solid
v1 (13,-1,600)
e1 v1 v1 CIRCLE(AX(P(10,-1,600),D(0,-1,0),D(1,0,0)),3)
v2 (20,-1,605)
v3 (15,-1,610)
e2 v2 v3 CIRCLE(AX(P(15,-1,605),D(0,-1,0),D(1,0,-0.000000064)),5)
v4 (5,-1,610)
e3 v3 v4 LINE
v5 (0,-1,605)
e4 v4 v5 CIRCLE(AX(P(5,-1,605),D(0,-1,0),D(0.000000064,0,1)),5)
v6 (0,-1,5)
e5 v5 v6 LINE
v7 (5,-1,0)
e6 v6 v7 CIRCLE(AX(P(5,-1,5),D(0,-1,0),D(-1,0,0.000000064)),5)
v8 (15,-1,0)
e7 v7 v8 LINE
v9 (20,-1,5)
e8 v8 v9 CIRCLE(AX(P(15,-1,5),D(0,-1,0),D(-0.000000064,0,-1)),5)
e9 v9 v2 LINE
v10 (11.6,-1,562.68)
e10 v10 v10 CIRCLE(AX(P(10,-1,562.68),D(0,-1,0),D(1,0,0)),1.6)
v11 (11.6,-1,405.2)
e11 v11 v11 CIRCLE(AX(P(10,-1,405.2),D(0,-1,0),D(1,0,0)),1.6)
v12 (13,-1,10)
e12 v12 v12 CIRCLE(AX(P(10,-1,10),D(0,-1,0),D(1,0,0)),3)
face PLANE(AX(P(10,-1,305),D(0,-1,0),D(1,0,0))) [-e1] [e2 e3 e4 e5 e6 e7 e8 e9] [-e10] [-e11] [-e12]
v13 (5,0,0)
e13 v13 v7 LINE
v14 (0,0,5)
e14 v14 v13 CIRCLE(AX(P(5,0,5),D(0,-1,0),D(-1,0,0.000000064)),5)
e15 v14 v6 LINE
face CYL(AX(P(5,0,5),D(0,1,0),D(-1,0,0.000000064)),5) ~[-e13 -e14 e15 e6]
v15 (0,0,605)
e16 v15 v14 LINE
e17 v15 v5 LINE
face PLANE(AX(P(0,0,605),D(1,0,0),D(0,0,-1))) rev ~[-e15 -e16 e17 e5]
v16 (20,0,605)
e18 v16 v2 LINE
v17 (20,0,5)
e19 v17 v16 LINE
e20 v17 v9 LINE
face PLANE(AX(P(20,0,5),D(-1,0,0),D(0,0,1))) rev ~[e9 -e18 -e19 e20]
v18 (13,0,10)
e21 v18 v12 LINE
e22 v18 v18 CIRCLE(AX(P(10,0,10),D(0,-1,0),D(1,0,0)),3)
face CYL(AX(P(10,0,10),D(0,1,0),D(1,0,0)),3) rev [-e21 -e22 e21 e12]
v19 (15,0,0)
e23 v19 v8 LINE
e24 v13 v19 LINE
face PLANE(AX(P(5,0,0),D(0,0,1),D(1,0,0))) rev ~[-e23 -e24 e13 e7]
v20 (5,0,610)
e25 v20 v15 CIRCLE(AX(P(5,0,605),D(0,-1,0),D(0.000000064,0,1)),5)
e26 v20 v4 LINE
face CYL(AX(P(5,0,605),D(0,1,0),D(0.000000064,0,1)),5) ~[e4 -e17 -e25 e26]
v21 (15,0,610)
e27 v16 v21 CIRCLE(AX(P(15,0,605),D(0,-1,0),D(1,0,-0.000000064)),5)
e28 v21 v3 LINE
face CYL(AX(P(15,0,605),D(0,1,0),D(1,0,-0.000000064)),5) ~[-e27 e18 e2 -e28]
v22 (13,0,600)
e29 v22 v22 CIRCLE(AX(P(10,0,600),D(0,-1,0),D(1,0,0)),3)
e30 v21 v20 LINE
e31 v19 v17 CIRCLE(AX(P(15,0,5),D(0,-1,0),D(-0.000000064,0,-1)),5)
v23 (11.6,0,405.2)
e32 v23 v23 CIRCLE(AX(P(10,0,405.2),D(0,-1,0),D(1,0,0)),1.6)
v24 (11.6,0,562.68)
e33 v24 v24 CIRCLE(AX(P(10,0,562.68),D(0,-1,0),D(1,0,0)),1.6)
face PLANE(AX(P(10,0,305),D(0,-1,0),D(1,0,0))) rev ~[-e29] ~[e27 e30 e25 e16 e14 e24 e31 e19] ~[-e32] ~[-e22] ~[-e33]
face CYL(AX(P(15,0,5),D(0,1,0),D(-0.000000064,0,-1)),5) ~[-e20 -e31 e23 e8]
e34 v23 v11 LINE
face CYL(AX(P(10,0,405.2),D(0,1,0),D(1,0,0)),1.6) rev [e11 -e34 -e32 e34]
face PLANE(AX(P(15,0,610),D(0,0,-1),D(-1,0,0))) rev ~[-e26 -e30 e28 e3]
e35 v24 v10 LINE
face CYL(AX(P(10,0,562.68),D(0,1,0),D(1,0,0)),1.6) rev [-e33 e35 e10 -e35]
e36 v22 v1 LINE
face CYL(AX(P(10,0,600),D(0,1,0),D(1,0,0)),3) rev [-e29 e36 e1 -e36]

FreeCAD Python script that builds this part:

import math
import FreeCAD as App
import Part
import Sketcher
Q = App.Units.Quantity

doc = App.newDocument("Part")
params = doc.addObject("Spreadsheet::Sheet", "Params")
for row, (alias, value) in enumerate([
    ("sketch1_diameter", "6 mm"),
    ("sketch1_radius", "5 mm"),
    ("sketch1_diameter2", "3.2 mm"),
    ("sketch1_width", "10 mm"),
    ("sketch1_height", "600 mm"),
    ("pad1_length", "1 mm"),
], start=1):
    params.set(f"A{row}", alias)
    params.set(f"B{row}", "=" + value)
    params.setAlias(f"B{row}", alias)

body = doc.addObject("PartDesign::Body", "Body")

# Sketch on XZ plane
sketch1 = body.newObject("Sketcher::SketchObject", "Sketch")
sketch1.AttachmentSupport = (doc.getObject("XZ_Plane"), [""])
sketch1.MapMode = "FlatFace"
sketch1.addGeometry([
    Part.ArcOfCircle(Part.Circle(App.Vector(5, 5, 0), App.Vector(0, 0, 1), 5), math.radians(180), math.radians(270)),  # 0
    Part.LineSegment(App.Vector(5, 0, 0), App.Vector(15, 0, 0)),  # 1
    Part.ArcOfCircle(Part.Circle(App.Vector(15, 5, 0), App.Vector(0, 0, 1), 5), math.radians(-90), math.radians(0)),  # 2
    Part.LineSegment(App.Vector(20, 5, 0), App.Vector(20, 605, 0)),  # 3
    Part.ArcOfCircle(Part.Circle(App.Vector(15, 605, 0), App.Vector(0, 0, 1), 5), math.radians(0), math.radians(90)),  # 4
    Part.LineSegment(App.Vector(15, 610, 0), App.Vector(5, 610, 0)),  # 5
    Part.ArcOfCircle(Part.Circle(App.Vector(5, 605, 0), App.Vector(0, 0, 1), 5), math.radians(90), math.radians(180)),  # 6
    Part.LineSegment(App.Vector(0, 605, 0), App.Vector(0, 5, 0)),  # 7
    Part.Circle(App.Vector(10, 10, 0), App.Vector(0, 0, 1), 3),  # 8
    Part.Circle(App.Vector(10, 405.2, 0), App.Vector(0, 0, 1), 1.6),  # 9
    Part.Circle(App.Vector(10, 562.7, 0), App.Vector(0, 0, 1), 1.6),  # 10
    Part.Circle(App.Vector(10, 600, 0), App.Vector(0, 0, 1), 3),  # 11
], False)
sketch1.addConstraint([
    Sketcher.Constraint("Tangent", 0, 2, 1, 1),
    Sketcher.Constraint("Tangent", 1, 2, 2, 1),
    Sketcher.Constraint("Tangent", 2, 2, 3, 1),
    Sketcher.Constraint("Tangent", 3, 2, 4, 1),
    Sketcher.Constraint("Tangent", 4, 2, 5, 1),
    Sketcher.Constraint("Tangent", 5, 2, 6, 1),
    Sketcher.Constraint("Tangent", 6, 2, 7, 1),
    Sketcher.Constraint("Tangent", 7, 2, 0, 1),
    Sketcher.Constraint("Horizontal", 1),
    Sketcher.Constraint("Vertical", 3),
    Sketcher.Constraint("Horizontal", 5),
    Sketcher.Constraint("Vertical", 7),
    Sketcher.Constraint("Equal", 0, 2),
    Sketcher.Constraint("Equal", 2, 4),
    Sketcher.Constraint("Equal", 4, 6),
    Sketcher.Constraint("Equal", 9, 10),
    Sketcher.Constraint("Equal", 8, 11),
    Sketcher.Constraint("PointOnObject", 0, 2, -1),
    Sketcher.Constraint("PointOnObject", 6, 2, -2),
    Sketcher.Constraint("Vertical", 8, 3, 9, 3),
    Sketcher.Constraint("Vertical", 9, 3, 10, 3),
    Sketcher.Constraint("Vertical", 10, 3, 11, 3),
    Sketcher.Constraint("Diameter", 8, Q("6 mm")),
    Sketcher.Constraint("Radius", 0, Q("5 mm")),
    Sketcher.Constraint("Diameter", 9, Q("3.2 mm")),
    Sketcher.Constraint("DistanceX", 1, 1, 1, 2, Q("10 mm")),
    Sketcher.Constraint("DistanceY", 3, 1, 3, 2, Q("600 mm")),
    Sketcher.Constraint("DistanceX", -1, 1, 8, 3, Q("10 mm")),
    Sketcher.Constraint("DistanceY", -1, 1, 8, 3, Q("10 mm")),
    Sketcher.Constraint("DistanceY", -1, 1, 11, 3, Q("600 mm")),
    Sketcher.Constraint("DistanceY", -1, 1, 9, 3, Q("405.2 mm")),
    Sketcher.Constraint("DistanceY", -1, 1, 10, 3, Q("562.68 mm")),
])
sketch1.setExpression("Constraints[22]", "Params.sketch1_diameter")
sketch1.setExpression("Constraints[23]", "Params.sketch1_radius")
sketch1.setExpression("Constraints[24]", "Params.sketch1_diameter2")
sketch1.setExpression("Constraints[25]", "Params.sketch1_width")
sketch1.setExpression("Constraints[26]", "Params.sketch1_height")
pad1 = body.newObject("PartDesign::Pad", "Pad")
pad1.Profile = sketch1
pad1.setExpression("Length", "Params.pad1_length")

doc.recompute()
